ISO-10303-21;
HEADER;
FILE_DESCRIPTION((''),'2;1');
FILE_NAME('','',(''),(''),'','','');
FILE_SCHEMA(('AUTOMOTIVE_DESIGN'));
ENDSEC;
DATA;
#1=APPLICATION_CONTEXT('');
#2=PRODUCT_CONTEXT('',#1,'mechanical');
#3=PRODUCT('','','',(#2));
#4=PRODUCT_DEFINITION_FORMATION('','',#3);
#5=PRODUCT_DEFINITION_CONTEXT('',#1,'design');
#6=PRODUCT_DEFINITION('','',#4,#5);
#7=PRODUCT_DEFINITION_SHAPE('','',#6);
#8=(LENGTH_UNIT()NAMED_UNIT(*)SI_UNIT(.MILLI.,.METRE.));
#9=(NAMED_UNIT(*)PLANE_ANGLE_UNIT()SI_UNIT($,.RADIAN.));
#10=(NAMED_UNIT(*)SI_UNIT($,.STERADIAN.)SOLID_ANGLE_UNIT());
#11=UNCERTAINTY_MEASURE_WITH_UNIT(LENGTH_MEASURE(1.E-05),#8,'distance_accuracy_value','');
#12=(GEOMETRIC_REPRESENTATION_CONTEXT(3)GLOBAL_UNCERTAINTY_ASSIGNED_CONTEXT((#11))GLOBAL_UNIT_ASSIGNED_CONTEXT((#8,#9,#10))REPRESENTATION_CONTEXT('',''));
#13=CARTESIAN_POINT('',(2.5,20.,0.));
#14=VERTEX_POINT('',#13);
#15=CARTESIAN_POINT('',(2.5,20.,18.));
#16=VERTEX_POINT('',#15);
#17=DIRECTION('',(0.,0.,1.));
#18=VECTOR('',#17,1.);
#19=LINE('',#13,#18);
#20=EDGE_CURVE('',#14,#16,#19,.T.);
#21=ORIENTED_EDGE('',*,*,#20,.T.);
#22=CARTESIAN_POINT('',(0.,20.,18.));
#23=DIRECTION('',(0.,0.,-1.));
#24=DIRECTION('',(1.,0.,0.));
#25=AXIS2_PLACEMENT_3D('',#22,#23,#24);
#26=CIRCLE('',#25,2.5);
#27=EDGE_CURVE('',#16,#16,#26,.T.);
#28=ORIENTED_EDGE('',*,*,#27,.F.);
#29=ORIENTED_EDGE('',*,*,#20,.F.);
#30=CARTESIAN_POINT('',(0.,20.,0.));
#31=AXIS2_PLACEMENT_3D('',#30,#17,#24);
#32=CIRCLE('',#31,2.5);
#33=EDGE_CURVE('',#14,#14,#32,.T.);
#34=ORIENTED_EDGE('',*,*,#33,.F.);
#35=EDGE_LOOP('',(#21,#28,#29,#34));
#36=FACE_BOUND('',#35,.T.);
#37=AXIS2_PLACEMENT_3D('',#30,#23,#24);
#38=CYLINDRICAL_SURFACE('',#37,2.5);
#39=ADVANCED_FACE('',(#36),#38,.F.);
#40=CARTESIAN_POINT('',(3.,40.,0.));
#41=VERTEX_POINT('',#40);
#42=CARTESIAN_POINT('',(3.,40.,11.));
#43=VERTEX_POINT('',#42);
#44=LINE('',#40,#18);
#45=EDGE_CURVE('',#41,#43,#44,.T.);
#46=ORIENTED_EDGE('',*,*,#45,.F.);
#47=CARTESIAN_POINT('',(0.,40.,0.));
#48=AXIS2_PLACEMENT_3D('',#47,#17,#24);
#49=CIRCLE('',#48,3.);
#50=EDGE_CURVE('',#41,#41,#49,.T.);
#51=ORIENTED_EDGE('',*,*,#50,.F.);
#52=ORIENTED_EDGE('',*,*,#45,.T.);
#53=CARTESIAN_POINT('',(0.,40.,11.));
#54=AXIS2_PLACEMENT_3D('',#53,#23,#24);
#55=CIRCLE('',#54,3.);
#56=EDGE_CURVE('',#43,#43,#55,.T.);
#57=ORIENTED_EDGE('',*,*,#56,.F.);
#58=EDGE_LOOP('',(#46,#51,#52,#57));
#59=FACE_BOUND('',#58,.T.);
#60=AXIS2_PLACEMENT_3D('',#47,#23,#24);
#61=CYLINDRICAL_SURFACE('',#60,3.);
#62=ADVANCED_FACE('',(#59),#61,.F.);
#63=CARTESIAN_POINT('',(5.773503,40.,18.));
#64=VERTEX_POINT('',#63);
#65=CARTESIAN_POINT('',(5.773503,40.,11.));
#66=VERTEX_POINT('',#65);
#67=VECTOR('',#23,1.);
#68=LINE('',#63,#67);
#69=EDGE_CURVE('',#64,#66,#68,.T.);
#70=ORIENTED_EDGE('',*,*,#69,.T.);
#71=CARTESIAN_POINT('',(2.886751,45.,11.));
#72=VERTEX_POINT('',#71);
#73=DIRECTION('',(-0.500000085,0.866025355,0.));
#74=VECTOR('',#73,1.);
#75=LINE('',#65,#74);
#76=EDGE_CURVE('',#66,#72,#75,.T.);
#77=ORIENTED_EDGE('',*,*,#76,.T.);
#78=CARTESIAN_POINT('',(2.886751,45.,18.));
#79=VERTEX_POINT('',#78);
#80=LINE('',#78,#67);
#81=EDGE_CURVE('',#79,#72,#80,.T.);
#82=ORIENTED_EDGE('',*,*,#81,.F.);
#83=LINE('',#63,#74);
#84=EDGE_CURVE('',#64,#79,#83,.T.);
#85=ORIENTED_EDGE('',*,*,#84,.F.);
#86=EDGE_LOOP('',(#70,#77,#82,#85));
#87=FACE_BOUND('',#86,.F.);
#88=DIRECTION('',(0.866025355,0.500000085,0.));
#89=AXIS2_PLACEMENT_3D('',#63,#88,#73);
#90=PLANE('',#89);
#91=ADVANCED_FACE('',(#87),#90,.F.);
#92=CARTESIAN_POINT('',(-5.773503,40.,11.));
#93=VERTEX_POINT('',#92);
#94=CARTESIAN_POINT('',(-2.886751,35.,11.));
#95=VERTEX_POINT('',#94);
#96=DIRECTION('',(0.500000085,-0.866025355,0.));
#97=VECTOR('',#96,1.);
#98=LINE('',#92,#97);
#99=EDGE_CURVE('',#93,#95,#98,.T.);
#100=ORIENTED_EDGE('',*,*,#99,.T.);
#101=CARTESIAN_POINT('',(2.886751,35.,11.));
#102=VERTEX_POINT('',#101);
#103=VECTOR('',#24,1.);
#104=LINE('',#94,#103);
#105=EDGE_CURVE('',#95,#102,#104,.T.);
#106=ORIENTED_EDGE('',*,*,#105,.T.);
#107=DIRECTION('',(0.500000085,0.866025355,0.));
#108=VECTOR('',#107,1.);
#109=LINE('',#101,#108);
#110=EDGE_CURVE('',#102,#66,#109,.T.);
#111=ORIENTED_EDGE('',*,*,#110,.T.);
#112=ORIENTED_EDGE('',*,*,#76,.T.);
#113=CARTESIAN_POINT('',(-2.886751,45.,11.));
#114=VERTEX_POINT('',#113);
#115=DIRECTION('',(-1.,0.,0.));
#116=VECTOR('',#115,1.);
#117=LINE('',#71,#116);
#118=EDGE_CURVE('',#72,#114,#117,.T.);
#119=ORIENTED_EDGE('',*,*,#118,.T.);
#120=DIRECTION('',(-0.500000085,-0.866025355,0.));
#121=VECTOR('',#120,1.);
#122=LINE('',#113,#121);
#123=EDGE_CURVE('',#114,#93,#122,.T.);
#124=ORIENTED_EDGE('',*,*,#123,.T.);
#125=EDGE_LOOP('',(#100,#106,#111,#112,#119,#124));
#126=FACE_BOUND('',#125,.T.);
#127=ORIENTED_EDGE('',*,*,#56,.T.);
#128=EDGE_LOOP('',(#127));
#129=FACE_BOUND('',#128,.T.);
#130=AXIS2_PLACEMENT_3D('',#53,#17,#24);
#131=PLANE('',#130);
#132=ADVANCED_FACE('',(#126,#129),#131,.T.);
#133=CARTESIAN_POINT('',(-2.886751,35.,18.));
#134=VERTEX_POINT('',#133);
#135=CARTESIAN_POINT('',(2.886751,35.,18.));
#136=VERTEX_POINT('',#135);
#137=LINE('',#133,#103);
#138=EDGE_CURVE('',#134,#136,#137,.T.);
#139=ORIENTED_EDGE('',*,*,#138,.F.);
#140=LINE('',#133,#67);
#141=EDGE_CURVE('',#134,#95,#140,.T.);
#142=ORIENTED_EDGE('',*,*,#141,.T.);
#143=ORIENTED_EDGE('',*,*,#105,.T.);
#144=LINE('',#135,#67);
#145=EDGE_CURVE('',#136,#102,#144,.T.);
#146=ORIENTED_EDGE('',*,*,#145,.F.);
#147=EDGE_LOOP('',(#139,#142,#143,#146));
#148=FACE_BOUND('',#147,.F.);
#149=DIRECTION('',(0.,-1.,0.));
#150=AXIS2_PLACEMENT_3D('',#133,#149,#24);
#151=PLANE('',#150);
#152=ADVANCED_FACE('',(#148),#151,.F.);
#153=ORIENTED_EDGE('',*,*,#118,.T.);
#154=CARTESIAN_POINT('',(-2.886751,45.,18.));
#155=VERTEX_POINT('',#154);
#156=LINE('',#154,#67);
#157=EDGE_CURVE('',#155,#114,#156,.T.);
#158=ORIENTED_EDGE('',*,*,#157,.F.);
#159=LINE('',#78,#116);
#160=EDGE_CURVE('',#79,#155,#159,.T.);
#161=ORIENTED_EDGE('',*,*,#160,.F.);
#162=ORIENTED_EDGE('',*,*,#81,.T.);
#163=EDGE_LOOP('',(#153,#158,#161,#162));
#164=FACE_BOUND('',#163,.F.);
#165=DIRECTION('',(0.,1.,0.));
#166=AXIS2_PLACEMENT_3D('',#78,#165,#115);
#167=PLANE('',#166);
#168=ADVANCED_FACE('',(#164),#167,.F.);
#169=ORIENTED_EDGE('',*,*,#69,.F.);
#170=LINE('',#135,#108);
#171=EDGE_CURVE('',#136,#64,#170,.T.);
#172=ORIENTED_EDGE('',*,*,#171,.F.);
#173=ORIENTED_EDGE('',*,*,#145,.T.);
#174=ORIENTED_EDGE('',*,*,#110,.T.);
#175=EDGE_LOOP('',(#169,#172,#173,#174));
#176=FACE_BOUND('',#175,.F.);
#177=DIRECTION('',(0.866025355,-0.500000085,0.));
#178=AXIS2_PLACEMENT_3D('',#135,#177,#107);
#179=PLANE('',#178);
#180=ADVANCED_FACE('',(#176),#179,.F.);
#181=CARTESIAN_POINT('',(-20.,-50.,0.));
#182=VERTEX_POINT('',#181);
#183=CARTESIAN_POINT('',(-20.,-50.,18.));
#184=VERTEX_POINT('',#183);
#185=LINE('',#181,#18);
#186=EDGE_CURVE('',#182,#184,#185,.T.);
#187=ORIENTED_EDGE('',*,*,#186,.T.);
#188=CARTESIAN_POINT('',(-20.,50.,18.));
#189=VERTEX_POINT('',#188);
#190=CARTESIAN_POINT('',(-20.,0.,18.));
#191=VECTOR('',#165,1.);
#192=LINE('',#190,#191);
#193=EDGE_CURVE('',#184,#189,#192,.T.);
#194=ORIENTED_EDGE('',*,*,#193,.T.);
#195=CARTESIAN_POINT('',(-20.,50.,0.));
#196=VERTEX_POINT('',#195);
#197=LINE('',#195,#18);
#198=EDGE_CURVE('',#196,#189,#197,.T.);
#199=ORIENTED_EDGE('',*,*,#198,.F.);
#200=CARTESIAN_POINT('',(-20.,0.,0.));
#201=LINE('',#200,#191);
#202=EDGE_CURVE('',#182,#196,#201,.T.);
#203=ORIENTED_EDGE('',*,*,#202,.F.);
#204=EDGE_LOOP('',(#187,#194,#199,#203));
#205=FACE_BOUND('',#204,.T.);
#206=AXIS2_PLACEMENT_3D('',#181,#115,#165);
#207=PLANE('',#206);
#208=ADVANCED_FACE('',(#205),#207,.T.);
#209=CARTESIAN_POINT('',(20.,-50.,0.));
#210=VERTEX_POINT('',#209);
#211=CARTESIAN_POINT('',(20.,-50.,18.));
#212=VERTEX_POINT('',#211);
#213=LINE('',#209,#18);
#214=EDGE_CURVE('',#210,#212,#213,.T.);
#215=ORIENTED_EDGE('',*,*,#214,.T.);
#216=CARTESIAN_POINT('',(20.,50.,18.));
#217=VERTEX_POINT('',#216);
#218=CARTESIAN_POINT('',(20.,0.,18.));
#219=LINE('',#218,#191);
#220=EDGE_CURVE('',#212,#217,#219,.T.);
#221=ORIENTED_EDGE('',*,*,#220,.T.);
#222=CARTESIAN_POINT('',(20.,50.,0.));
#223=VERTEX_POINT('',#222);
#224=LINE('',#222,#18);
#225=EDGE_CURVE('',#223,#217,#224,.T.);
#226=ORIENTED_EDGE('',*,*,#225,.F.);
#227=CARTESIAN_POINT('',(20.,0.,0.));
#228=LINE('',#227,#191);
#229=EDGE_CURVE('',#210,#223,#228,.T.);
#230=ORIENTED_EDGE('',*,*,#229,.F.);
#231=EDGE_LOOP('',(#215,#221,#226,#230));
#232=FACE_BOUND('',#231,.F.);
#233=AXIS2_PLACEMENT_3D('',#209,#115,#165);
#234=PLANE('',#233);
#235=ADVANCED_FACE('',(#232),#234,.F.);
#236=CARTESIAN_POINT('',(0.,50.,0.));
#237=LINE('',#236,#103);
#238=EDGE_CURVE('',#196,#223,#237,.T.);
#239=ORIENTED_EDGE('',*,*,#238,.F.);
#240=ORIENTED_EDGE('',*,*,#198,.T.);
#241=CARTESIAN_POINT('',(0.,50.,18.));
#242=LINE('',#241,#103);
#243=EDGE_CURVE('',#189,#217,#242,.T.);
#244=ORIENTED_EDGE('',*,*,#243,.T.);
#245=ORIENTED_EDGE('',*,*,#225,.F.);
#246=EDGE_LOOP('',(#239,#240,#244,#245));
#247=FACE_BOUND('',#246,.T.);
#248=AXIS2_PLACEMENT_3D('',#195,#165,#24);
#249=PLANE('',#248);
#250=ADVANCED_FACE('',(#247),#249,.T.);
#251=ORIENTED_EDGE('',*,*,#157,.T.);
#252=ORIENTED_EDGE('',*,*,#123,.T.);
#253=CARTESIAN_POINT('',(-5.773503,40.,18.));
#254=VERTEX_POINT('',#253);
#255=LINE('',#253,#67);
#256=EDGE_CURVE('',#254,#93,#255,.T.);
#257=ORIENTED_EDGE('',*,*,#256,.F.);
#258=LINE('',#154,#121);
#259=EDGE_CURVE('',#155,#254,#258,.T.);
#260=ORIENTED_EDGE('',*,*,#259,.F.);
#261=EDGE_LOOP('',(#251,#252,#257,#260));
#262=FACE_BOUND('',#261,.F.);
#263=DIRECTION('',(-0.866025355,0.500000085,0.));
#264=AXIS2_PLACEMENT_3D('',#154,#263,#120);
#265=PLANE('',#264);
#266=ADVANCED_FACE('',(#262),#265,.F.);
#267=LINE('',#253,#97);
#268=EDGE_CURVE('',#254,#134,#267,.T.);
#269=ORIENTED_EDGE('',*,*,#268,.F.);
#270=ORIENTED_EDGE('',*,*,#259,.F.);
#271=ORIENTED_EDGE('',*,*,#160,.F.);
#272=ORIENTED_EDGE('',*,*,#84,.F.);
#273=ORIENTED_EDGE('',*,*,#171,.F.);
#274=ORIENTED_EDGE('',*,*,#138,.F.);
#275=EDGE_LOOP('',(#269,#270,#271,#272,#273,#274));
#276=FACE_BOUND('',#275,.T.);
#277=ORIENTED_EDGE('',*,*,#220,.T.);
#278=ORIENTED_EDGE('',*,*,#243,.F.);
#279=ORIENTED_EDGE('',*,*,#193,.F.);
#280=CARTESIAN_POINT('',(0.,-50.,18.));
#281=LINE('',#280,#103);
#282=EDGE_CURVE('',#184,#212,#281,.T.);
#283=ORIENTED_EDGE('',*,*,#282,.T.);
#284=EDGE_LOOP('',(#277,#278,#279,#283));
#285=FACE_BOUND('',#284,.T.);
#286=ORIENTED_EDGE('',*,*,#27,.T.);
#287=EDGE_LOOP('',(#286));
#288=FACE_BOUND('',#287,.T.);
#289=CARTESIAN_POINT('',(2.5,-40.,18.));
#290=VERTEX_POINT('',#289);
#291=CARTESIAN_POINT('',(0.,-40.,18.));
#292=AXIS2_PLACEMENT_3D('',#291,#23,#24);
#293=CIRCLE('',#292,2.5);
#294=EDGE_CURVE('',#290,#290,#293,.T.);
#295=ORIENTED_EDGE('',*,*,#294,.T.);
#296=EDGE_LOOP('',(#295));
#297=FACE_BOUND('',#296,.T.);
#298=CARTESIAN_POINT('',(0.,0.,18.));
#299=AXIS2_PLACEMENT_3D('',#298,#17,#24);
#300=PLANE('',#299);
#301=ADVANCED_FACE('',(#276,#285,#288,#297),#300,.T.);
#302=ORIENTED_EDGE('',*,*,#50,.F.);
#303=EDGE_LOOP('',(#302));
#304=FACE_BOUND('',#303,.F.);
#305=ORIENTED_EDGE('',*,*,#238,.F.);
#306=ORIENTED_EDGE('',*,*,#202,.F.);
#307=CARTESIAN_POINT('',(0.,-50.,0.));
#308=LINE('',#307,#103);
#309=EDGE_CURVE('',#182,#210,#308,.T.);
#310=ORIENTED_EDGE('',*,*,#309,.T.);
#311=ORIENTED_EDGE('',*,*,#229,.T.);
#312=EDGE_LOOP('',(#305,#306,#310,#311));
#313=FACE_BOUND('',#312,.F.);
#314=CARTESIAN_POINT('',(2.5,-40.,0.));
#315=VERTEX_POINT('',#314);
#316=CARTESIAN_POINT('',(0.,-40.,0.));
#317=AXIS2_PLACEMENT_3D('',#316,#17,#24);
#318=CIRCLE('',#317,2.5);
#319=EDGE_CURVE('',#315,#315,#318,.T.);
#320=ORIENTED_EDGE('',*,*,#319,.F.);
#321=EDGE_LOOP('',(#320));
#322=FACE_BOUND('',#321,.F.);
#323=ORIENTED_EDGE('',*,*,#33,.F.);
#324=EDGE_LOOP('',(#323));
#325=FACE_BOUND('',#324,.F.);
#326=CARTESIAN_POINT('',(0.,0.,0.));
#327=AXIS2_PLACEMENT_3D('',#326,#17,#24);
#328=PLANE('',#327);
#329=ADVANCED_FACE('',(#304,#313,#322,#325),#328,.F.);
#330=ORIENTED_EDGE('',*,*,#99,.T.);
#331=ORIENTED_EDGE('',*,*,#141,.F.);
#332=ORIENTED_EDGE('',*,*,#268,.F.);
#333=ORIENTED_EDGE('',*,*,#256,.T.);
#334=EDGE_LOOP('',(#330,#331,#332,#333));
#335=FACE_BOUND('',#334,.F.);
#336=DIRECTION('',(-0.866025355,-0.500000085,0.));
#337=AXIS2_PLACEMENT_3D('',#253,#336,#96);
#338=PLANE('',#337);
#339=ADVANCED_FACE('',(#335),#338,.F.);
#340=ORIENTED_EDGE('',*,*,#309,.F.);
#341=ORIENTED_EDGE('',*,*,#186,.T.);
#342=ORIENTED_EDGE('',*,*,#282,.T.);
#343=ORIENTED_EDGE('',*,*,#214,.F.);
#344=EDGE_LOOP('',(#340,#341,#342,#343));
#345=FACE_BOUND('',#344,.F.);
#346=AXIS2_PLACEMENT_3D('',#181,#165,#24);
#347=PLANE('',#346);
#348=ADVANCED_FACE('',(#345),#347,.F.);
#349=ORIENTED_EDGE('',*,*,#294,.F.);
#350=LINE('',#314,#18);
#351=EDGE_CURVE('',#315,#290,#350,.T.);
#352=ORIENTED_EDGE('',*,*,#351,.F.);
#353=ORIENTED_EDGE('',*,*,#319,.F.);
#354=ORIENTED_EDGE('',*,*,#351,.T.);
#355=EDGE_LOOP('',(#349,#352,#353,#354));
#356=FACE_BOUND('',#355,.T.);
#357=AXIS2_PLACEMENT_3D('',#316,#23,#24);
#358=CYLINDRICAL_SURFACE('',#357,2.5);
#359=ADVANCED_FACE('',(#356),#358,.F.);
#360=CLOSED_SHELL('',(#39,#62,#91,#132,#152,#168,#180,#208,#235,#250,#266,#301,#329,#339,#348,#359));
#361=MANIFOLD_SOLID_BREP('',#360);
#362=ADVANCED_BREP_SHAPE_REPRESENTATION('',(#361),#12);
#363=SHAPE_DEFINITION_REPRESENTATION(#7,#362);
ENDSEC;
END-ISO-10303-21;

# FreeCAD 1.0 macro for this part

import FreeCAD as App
import Part
import Sketcher
from FreeCAD import Vector
Q = App.Units.Quantity


def add_polygon(sketch, points):
    """Adds a closed chain of lines whose ends are joined by coincident constraints."""
    first, n = sketch.GeometryCount, len(points)
    for a, b in zip(points, points[1:] + points[:1]):
        sketch.addGeometry(Part.LineSegment(App.Vector(*a, 0), App.Vector(*b, 0)), False)
    for i in range(n):
        sketch.addConstraint(Sketcher.Constraint("Coincident", first + i, 2, first + (i + 1) % n, 1))

doc = App.newDocument("Part")
body = doc.addObject("PartDesign::Body", "Body")

# Sketch on XY plane
sketch1 = body.newObject("Sketcher::SketchObject", "Sketch")
sketch1.AttachmentSupport = (doc.getObject("XY_Plane"), [""])
sketch1.MapMode = "FlatFace"
add_polygon(sketch1, [(-20, 50), (-20, -50), (20, -50), (20, 50)])  # lines 0-3
sketch1.addConstraint(Sketcher.Constraint("Vertical", 0))
sketch1.addConstraint(Sketcher.Constraint("Horizontal", 1))
sketch1.addConstraint(Sketcher.Constraint("Vertical", 2))
sketch1.addConstraint(Sketcher.Constraint("Horizontal", 3))
sketch1.addConstraint(Sketcher.Constraint("Symmetric", 0, 2, 2, 2, -1, 1))
sketch1.addConstraint(Sketcher.Constraint("DistanceX", 1, 1, 1, 2, 40.0))
sketch1.addConstraint(Sketcher.Constraint("DistanceY", 0, 2, 0, 1, 100.0))
pad1 = body.newObject("PartDesign::Pad", "Pad")
pad1.Profile = sketch1
pad1.Length = 18

# Sketch on XY plane
sketch2 = body.newObject("Sketcher::SketchObject", "Sketch001")
sketch2.AttachmentSupport = (doc.getObject("XY_Plane"), [""])
sketch2.MapMode = "FlatFace"
sketch2.addGeometry(Part.Circle(Vector(0, 40, 0), Vector(0, 0, 1), 3), False)
sketch2.addGeometry(Part.Circle(Vector(0, 20, 0), Vector(0, 0, 1), 2.5), False)
sketch2.addGeometry(Part.Circle(Vector(0, -40, 0), Vector(0, 0, 1), 2.5), False)
sketch2.addConstraint(Sketcher.Constraint("Equal", 1, 2))
sketch2.addConstraint(Sketcher.Constraint("Symmetric", 0, 3, 2, 3, -1, 1))
sketch2.addConstraint(Sketcher.Constraint("PointOnObject", 0, 3, -2))
sketch2.addConstraint(Sketcher.Constraint("PointOnObject", 1, 3, -2))
sketch2.addConstraint(Sketcher.Constraint("Diameter", 0, 6.0))
sketch2.addConstraint(Sketcher.Constraint("Diameter", 1, 5.0))
sketch2.addConstraint(Sketcher.Constraint("DistanceY", -1, 1, 0, 3, 40.0))
sketch2.addConstraint(Sketcher.Constraint("DistanceY", -1, 1, 1, 3, 20.0))
pocket1 = body.newObject("PartDesign::Pocket", "Pocket")
pocket1.Profile = sketch2
pocket1.Type = "ThroughAll"
pocket1.Midplane = True

# Sketch on XY plane
sketch3 = body.newObject("Sketcher::SketchObject", "Sketch002")
sketch3.AttachmentSupport = (doc.getObject("XY_Plane"), [""])
sketch3.MapMode = "FlatFace"
sketch3.AttachmentOffset = App.Placement(Vector(0, 0, 18), App.Rotation())
add_polygon(sketch3, [(6, 40), (3, 45), (-3, 45), (-6, 40), (-3, 35), (3, 35)])  # lines 0-5
sketch3.addConstraint(Sketcher.Constraint("Horizontal", 1))
sketch3.addConstraint(Sketcher.Constraint("Horizontal", 4))
sketch3.addConstraint(Sketcher.Constraint("Symmetric", 2, 2, 5, 2, -2))
sketch3.addConstraint(Sketcher.Constraint("Parallel", 0, 3))
sketch3.addConstraint(Sketcher.Constraint("Parallel", 2, 5))
sketch3.addConstraint(Sketcher.Constraint("Vertical", 1, 2, 3, 2))
sketch3.addConstraint(Sketcher.Constraint("Vertical", 0, 2, 4, 2))
sketch3.addConstraint(Sketcher.Constraint("Angle", 0, Q("120.000006 deg")))
sketch3.addConstraint(Sketcher.Constraint("DistanceY", -1, 1, 0, 2, 45.0))
sketch3.addConstraint(Sketcher.Constraint("DistanceY", -1, 1, 2, 2, 40.0))
sketch3.addConstraint(Sketcher.Constraint("DistanceX", 1, 2, 1, 1, 5.773502))
pocket2 = body.newObject("PartDesign::Pocket", "Pocket001")
pocket2.Profile = sketch3
pocket2.Length = 7

doc.recompute()
